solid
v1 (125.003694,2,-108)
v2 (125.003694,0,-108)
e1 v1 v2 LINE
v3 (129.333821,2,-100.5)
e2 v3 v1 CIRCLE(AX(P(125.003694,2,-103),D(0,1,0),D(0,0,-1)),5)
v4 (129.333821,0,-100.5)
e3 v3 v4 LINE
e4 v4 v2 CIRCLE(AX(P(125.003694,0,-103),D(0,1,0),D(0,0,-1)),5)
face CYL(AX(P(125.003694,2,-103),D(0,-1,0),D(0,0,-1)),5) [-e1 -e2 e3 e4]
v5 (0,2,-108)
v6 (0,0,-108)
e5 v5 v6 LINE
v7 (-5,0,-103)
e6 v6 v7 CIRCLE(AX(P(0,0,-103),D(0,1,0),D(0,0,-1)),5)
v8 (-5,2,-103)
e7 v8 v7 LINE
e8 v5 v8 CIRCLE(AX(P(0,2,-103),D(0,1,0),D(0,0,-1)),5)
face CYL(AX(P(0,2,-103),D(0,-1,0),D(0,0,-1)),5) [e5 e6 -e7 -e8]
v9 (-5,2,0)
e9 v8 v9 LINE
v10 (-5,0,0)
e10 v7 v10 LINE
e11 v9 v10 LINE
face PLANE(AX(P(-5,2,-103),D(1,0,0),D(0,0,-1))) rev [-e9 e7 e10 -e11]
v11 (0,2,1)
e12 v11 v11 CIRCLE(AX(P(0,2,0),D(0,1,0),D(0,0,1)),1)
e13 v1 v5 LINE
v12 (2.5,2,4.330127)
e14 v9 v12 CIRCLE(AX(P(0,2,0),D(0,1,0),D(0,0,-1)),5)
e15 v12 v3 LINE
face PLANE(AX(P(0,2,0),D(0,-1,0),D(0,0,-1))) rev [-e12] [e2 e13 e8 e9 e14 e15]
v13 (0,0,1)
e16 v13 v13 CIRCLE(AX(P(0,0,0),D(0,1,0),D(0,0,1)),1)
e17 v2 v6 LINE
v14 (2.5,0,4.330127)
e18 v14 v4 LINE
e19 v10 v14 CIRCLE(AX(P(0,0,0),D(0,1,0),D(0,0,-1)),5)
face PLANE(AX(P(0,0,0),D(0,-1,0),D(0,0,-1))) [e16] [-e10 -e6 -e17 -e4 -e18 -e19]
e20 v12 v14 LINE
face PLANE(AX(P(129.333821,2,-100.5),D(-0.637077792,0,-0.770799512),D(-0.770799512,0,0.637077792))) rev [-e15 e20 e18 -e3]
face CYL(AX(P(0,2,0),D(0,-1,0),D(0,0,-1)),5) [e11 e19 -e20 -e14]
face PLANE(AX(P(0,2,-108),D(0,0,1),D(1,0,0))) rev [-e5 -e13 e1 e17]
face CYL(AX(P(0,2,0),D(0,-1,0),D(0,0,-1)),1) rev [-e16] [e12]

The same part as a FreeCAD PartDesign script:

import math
import FreeCAD as App
import Part
import Sketcher
Q = App.Units.Quantity

doc = App.newDocument("Part")
body = doc.addObject("PartDesign::Body", "Body")

sketch1 = body.newObject("Sketcher::SketchObject", "Sketch")
sketch1.AttachmentSupport = (doc.getObject("XZ_Plane"), [""])
sketch1.MapMode = "FlatFace"
sketch1.addGeometry([
    Part.LineSegment(App.Vector(2.5, 4.3, 0), App.Vector(129.3, -100.5, 0)),
    Part.ArcOfCircle(Part.Circle(App.Vector(125, -103, 0), App.Vector(0, 0, 1), 5), math.radians(-90), math.radians(30)),
    Part.LineSegment(App.Vector(125, -108, 0), App.Vector(0, -108, 0)),
    Part.ArcOfCircle(Part.Circle(App.Vector(0, -103, 0), App.Vector(0, 0, 1), 5), math.radians(180), math.radians(270)),
    Part.LineSegment(App.Vector(-5, -103, 0), App.Vector(-5, 0, 0)),
    Part.ArcOfCircle(Part.Circle(App.Vector(0, 0, 0), App.Vector(0, 0, 1), 5), math.radians(60), math.radians(180)),
    Part.Circle(App.Vector(0, 0, 0), App.Vector(0, 0, 1), 1),
], False)
sketch1.addConstraint([
    Sketcher.Constraint("Coincident", 0, 2, 1, 2),
    Sketcher.Constraint("Tangent", 1, 1, 2, 1),
    Sketcher.Constraint("Tangent", 2, 2, 3, 2),
    Sketcher.Constraint("Tangent", 3, 1, 4, 1),
    Sketcher.Constraint("Tangent", 4, 2, 5, 2),
    Sketcher.Constraint("Coincident", 5, 1, 0, 1),
    Sketcher.Constraint("Horizontal", 2),
    Sketcher.Constraint("Vertical", 4),
    Sketcher.Constraint("Coincident", 5, 3, -1, 1),
    Sketcher.Constraint("Coincident", 6, 3, -1, 1),
    Sketcher.Constraint("Equal", 1, 3),
    Sketcher.Constraint("Equal", 3, 5),
    Sketcher.Constraint("Diameter", 6, Q("2 mm")),
    Sketcher.Constraint("Radius", 1, Q("5 mm")),
    Sketcher.Constraint("DistanceY", 4, 1, 4, 2, Q("103 mm")),
    Sketcher.Constraint("DistanceY", 0, 2, -1, 1, Q("100.5 mm")),
    Sketcher.Constraint("DistanceX", -1, 1, 5, 1, Q("2.5 mm")),
    Sketcher.Constraint("DistanceX", 2, 2, 2, 1, Q("125.003694 mm")),
])
pad1 = body.newObject("PartDesign::Pad", "Pad")
pad1.Profile = sketch1
pad1.Length = 2
pad1.Reversed = True

doc.recompute()
